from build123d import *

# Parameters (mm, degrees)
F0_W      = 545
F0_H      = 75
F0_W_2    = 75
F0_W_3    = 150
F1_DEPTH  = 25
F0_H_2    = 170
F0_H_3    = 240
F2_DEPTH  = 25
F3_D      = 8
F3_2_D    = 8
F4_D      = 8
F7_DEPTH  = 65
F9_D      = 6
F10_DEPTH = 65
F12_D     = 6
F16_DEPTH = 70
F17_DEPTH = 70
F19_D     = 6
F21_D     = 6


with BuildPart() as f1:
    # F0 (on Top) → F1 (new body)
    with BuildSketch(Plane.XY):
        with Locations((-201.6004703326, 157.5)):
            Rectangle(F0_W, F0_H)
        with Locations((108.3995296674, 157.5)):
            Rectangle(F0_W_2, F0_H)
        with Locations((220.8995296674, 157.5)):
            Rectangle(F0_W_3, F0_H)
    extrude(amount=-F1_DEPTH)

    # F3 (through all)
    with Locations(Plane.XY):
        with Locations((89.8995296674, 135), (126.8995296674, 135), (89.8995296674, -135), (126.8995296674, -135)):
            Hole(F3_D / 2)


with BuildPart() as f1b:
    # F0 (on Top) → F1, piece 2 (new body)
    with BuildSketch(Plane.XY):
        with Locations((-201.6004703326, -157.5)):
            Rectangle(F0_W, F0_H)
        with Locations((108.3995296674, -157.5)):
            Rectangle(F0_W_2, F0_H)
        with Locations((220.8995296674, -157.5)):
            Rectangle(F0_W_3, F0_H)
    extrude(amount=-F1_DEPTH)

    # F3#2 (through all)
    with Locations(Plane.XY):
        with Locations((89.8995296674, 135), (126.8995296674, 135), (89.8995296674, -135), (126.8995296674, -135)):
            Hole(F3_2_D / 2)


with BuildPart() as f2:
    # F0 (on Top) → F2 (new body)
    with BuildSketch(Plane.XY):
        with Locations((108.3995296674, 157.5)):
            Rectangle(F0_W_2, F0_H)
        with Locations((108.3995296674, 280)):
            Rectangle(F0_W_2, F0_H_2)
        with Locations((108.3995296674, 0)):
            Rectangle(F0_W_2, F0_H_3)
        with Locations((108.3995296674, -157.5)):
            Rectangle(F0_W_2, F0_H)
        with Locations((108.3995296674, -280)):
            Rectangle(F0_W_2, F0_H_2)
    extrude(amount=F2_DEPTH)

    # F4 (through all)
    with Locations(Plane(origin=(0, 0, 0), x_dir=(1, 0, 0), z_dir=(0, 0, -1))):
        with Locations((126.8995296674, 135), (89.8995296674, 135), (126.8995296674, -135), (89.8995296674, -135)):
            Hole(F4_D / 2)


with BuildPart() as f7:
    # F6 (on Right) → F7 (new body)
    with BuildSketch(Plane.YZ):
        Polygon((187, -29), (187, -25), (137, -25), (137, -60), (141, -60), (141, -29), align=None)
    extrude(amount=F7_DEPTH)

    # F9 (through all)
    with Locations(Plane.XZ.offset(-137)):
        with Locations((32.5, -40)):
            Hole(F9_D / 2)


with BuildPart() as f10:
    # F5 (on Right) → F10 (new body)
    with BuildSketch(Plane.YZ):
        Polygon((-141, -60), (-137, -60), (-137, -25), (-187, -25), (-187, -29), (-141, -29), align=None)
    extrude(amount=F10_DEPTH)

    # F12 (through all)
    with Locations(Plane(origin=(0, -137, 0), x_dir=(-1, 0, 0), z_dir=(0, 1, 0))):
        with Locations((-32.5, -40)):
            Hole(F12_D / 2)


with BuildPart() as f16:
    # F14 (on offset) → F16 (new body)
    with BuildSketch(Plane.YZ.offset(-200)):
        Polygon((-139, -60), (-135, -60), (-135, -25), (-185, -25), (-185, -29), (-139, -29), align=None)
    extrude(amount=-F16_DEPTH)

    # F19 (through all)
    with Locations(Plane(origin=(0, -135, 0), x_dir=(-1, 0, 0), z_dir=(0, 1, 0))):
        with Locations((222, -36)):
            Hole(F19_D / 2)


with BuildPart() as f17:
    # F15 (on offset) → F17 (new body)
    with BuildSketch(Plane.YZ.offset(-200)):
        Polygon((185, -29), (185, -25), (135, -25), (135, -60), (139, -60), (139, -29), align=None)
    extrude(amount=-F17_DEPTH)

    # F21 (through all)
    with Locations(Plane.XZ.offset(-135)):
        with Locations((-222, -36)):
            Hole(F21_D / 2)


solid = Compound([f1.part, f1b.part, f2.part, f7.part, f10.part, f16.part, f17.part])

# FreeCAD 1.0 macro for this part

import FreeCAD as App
import Part
import Sketcher

V = App.Vector
Q = App.Units.Quantity

doc = App.newDocument("Part")
body = doc.addObject("PartDesign::Body", "Body")

sketch1 = doc.addObject("Sketcher::SketchObject", "Sketch")
body.addObject(sketch1)
sketch1.AttachmentSupport = (doc.XY_Plane, [""])
sketch1.MapMode = "FlatFace"
sketch1.addGeometry([
    Part.LineSegment(V(-474.10047, 195, 0), V(-474.10047, 120, 0)),
    Part.LineSegment(V(-474.10047, 120, 0), V(295.89953, 120, 0)),
    Part.LineSegment(V(295.89953, 120, 0), V(295.89953, 195, 0)),
    Part.LineSegment(V(295.89953, 195, 0), V(-474.10047, 195, 0)),
], False)
sketch1.addConstraint([
    Sketcher.Constraint("Coincident", 0, 2, 1, 1),
    Sketcher.Constraint("Coincident", 1, 2, 2, 1),
    Sketcher.Constraint("Coincident", 2, 2, 3, 1),
    Sketcher.Constraint("Coincident", 3, 2, 0, 1),
    Sketcher.Constraint("Vertical", 0),
    Sketcher.Constraint("Horizontal", 1),
    Sketcher.Constraint("Vertical", 2),
    Sketcher.Constraint("Horizontal", 3),
    Sketcher.Constraint("DistanceX", 1, 1, 1, 2, Q("770 mm")),
    Sketcher.Constraint("DistanceY", 0, 2, 0, 1, Q("75 mm")),
    Sketcher.Constraint("DistanceY", -1, 1, 0, 2, Q("120 mm")),
    Sketcher.Constraint("DistanceX", 0, 2, -1, 1, Q("474.10047 mm")),
])
pad1 = doc.addObject("PartDesign::Pad", "Pad")
body.addObject(pad1)
pad1.Profile = sketch1
pad1.Length = 25
pad1.Reversed = True

sketch2 = doc.addObject("Sketcher::SketchObject", "Sketch001")
body.addObject(sketch2)
sketch2.AttachmentSupport = (doc.XY_Plane, [""])
sketch2.MapMode = "FlatFace"
sketch2.addGeometry([
    Part.Circle(V(89.89953, 135, 0), V(0, 0, 1), 4),
    Part.Circle(V(126.89953, 135, 0), V(0, 0, 1), 4),
    Part.Circle(V(89.89953, -135, 0), V(0, 0, 1), 4),
    Part.Circle(V(126.89953, -135, 0), V(0, 0, 1), 4),
], False)
sketch2.addConstraint([
    Sketcher.Constraint("Equal", 0, 1),
    Sketcher.Constraint("Equal", 1, 2),
    Sketcher.Constraint("Equal", 2, 3),
    Sketcher.Constraint("Symmetric", 0, 3, 2, 3, -1),
    Sketcher.Constraint("Symmetric", 1, 3, 3, 3, -1),
    Sketcher.Constraint("Horizontal", 0, 3, 1, 3),
    Sketcher.Constraint("Diameter", 0, Q("8 mm")),
    Sketcher.Constraint("DistanceY", -1, 1, 0, 3, Q("135 mm")),
    Sketcher.Constraint("DistanceX", 0, 3, 1, 3, Q("37 mm")),
    Sketcher.Constraint("DistanceX", -1, 1, 0, 3, Q("89.89953 mm")),
])
doc.recompute()
hole = doc.addObject("PartDesign::Hole", "Hole")
body.addObject(hole)
hole.Profile = sketch2
hole.ThreadType = "None"
hole.Diameter = 8
hole.DepthType = "ThroughAll"
body2 = doc.addObject("PartDesign::Body", "Body001")

sketch3 = doc.addObject("Sketcher::SketchObject", "Sketch002")
body2.addObject(sketch3)
sketch3.AttachmentSupport = (doc.getObject("XY_Plane001"), [""])
sketch3.MapMode = "FlatFace"
sketch3.addGeometry([
    Part.LineSegment(V(-474.10047, -120, 0), V(-474.10047, -195, 0)),
    Part.LineSegment(V(-474.10047, -195, 0), V(295.89953, -195, 0)),
    Part.LineSegment(V(295.89953, -195, 0), V(295.89953, -120, 0)),
    Part.LineSegment(V(295.89953, -120, 0), V(-474.10047, -120, 0)),
], False)
sketch3.addConstraint([
    Sketcher.Constraint("Coincident", 0, 2, 1, 1),
    Sketcher.Constraint("Coincident", 1, 2, 2, 1),
    Sketcher.Constraint("Coincident", 2, 2, 3, 1),
    Sketcher.Constraint("Coincident", 3, 2, 0, 1),
    Sketcher.Constraint("Vertical", 0),
    Sketcher.Constraint("Horizontal", 1),
    Sketcher.Constraint("Vertical", 2),
    Sketcher.Constraint("Horizontal", 3),
    Sketcher.Constraint("DistanceX", 1, 1, 1, 2, Q("770 mm")),
    Sketcher.Constraint("DistanceY", 0, 2, 0, 1, Q("75 mm")),
    Sketcher.Constraint("DistanceY", 0, 2, -1, 1, Q("195 mm")),
    Sketcher.Constraint("DistanceX", 0, 2, -1, 1, Q("474.10047 mm")),
])
pad2 = doc.addObject("PartDesign::Pad", "Pad001")
body2.addObject(pad2)
pad2.Profile = sketch3
pad2.Length = 25
pad2.Reversed = True

sketch4 = doc.addObject("Sketcher::SketchObject", "Sketch003")
body2.addObject(sketch4)
sketch4.AttachmentSupport = (doc.getObject("XY_Plane001"), [""])
sketch4.MapMode = "FlatFace"
sketch4.addGeometry([
    Part.Circle(V(89.89953, 135, 0), V(0, 0, 1), 4),
    Part.Circle(V(126.89953, 135, 0), V(0, 0, 1), 4),
    Part.Circle(V(89.89953, -135, 0), V(0, 0, 1), 4),
    Part.Circle(V(126.89953, -135, 0), V(0, 0, 1), 4),
], False)
sketch4.addConstraint([
    Sketcher.Constraint("Equal", 0, 1),
    Sketcher.Constraint("Equal", 1, 2),
    Sketcher.Constraint("Equal", 2, 3),
    Sketcher.Constraint("Symmetric", 0, 3, 2, 3, -1),
    Sketcher.Constraint("Symmetric", 1, 3, 3, 3, -1),
    Sketcher.Constraint("Horizontal", 0, 3, 1, 3),
    Sketcher.Constraint("Diameter", 0, Q("8 mm")),
    Sketcher.Constraint("DistanceY", -1, 1, 0, 3, Q("135 mm")),
    Sketcher.Constraint("DistanceX", 0, 3, 1, 3, Q("37 mm")),
    Sketcher.Constraint("DistanceX", -1, 1, 0, 3, Q("89.89953 mm")),
])
doc.recompute()
hole2 = doc.addObject("PartDesign::Hole", "Hole001")
body2.addObject(hole2)
hole2.Profile = sketch4
hole2.ThreadType = "None"
hole2.Diameter = 8
hole2.DepthType = "ThroughAll"
body3 = doc.addObject("PartDesign::Body", "Body002")

sketch5 = doc.addObject("Sketcher::SketchObject", "Sketch004")
body3.addObject(sketch5)
sketch5.AttachmentSupport = (doc.getObject("XY_Plane002"), [""])
sketch5.MapMode = "FlatFace"
sketch5.addGeometry([
    Part.LineSegment(V(145.89953, 365, 0), V(70.89953, 365, 0)),
    Part.LineSegment(V(70.89953, 365, 0), V(70.89953, -365, 0)),
    Part.LineSegment(V(70.89953, -365, 0), V(145.89953, -365, 0)),
    Part.LineSegment(V(145.89953, -365, 0), V(145.89953, 365, 0)),
], False)
sketch5.addConstraint([
    Sketcher.Constraint("Coincident", 0, 2, 1, 1),
    Sketcher.Constraint("Coincident", 1, 2, 2, 1),
    Sketcher.Constraint("Coincident", 2, 2, 3, 1),
    Sketcher.Constraint("Coincident", 3, 2, 0, 1),
    Sketcher.Constraint("Horizontal", 0),
    Sketcher.Constraint("Vertical", 1),
    Sketcher.Constraint("Horizontal", 2),
    Sketcher.Constraint("Vertical", 3),
    Sketcher.Constraint("DistanceX", 0, 2, 0, 1, Q("75 mm")),
    Sketcher.Constraint("DistanceY", 1, 2, 1, 1, Q("730 mm")),
    Sketcher.Constraint("DistanceY", -1, 1, 0, 2, Q("365 mm")),
    Sketcher.Constraint("DistanceX", -1, 1, 0, 2, Q("70.89953 mm")),
])
pad3 = doc.addObject("PartDesign::Pad", "Pad002")
body3.addObject(pad3)
pad3.Profile = sketch5
pad3.Length = 25

sketch6 = doc.addObject("Sketcher::SketchObject", "Sketch005")
body3.addObject(sketch6)
sketch6.AttachmentSupport = (doc.getObject("XY_Plane002"), [""])
sketch6.MapMode = "FlatFace"
sketch6.addGeometry([
    Part.Circle(V(126.89953, -135, 0), V(0, 0, 1), 4),
    Part.Circle(V(89.89953, -135, 0), V(0, 0, 1), 4),
    Part.Circle(V(126.89953, 135, 0), V(0, 0, 1), 4),
    Part.Circle(V(89.89953, 135, 0), V(0, 0, 1), 4),
], False)
sketch6.addConstraint([
    Sketcher.Constraint("Equal", 0, 1),
    Sketcher.Constraint("Equal", 1, 2),
    Sketcher.Constraint("Equal", 2, 3),
    Sketcher.Constraint("Symmetric", 0, 3, 2, 3, -1),
    Sketcher.Constraint("Symmetric", 1, 3, 3, 3, -1),
    Sketcher.Constraint("Horizontal", 0, 3, 1, 3),
    Sketcher.Constraint("Diameter", 0, Q("8 mm")),
    Sketcher.Constraint("DistanceY", 0, 3, -1, 1, Q("135 mm")),
    Sketcher.Constraint("DistanceX", 1, 3, 0, 3, Q("37 mm")),
    Sketcher.Constraint("DistanceX", -1, 1, 0, 3, Q("126.89953 mm")),
])
doc.recompute()
hole3 = doc.addObject("PartDesign::Hole", "Hole002")
body3.addObject(hole3)
hole3.Profile = sketch6
hole3.ThreadType = "None"
hole3.Diameter = 8
hole3.DepthType = "ThroughAll"
hole3.Reversed = True
body4 = doc.addObject("PartDesign::Body", "Body003")

sketch7 = doc.addObject("Sketcher::SketchObject", "Sketch006")
body4.addObject(sketch7)
sketch7.AttachmentSupport = (doc.getObject("YZ_Plane003"), [""])
sketch7.MapMode = "FlatFace"
sketch7.addGeometry([
    Part.LineSegment(V(187, -29, 0), V(187, -25, 0)),
    Part.LineSegment(V(187, -25, 0), V(137, -25, 0)),
    Part.LineSegment(V(137, -25, 0), V(137, -60, 0)),
    Part.LineSegment(V(137, -60, 0), V(141, -60, 0)),
    Part.LineSegment(V(141, -60, 0), V(141, -29, 0)),
    Part.LineSegment(V(141, -29, 0), V(187, -29, 0)),
], False)
sketch7.addConstraint([
    Sketcher.Constraint("Coincident", 0, 2, 1, 1),
    Sketcher.Constraint("Coincident", 1, 2, 2, 1),
    Sketcher.Constraint("Coincident", 2, 2, 3, 1),
    Sketcher.Constraint("Coincident", 3, 2, 4, 1),
    Sketcher.Constraint("Coincident", 4, 2, 5, 1),
    Sketcher.Constraint("Coincident", 5, 2, 0, 1),
    Sketcher.Constraint("Vertical", 0),
    Sketcher.Constraint("Horizontal", 1),
    Sketcher.Constraint("Vertical", 2),
    Sketcher.Constraint("Horizontal", 3),
    Sketcher.Constraint("Vertical", 4),
    Sketcher.Constraint("Horizontal", 5),
    Sketcher.Constraint("Equal", 3, 0),
    Sketcher.Constraint("DistanceX", 1, 2, 1, 1, Q("50 mm")),
    Sketcher.Constraint("DistanceX", 3, 1, 3, 2, Q("4 mm")),
    Sketcher.Constraint("DistanceY", 2, 2, 2, 1, Q("35 mm")),
    Sketcher.Constraint("DistanceX", -1, 1, 0, 2, Q("187 mm")),
    Sketcher.Constraint("DistanceY", 0, 2, -1, 1, Q("25 mm")),
])
pad4 = doc.addObject("PartDesign::Pad", "Pad003")
body4.addObject(pad4)
pad4.Profile = sketch7
pad4.Length = 65

sketch8 = doc.addObject("Sketcher::SketchObject", "Sketch007")
body4.addObject(sketch8)
sketch8.AttachmentSupport = (doc.getObject("XZ_Plane003"), [""])
sketch8.MapMode = "FlatFace"
sketch8.AttachmentOffset = App.Placement(V(0, 0, -137), App.Rotation())
sketch8.addGeometry(Part.Circle(V(32.5, -40, 0), V(0, 0, 1), 3), False)
sketch8.addConstraint([
    Sketcher.Constraint("Diameter", 0, Q("6 mm")),
    Sketcher.Constraint("DistanceY", 0, 3, -1, 1, Q("40 mm")),
    Sketcher.Constraint("DistanceX", -1, 1, 0, 3, Q("32.5 mm")),
])
doc.recompute()
hole4 = doc.addObject("PartDesign::Hole", "Hole003")
body4.addObject(hole4)
hole4.Profile = sketch8
hole4.ThreadType = "None"
hole4.Diameter = 6
hole4.DepthType = "ThroughAll"
body5 = doc.addObject("PartDesign::Body", "Body004")

sketch9 = doc.addObject("Sketcher::SketchObject", "Sketch008")
body5.addObject(sketch9)
sketch9.AttachmentSupport = (doc.getObject("YZ_Plane004"), [""])
sketch9.MapMode = "FlatFace"
sketch9.addGeometry([
    Part.LineSegment(V(-141, -60, 0), V(-137, -60, 0)),
    Part.LineSegment(V(-137, -60, 0), V(-137, -25, 0)),
    Part.LineSegment(V(-137, -25, 0), V(-187, -25, 0)),
    Part.LineSegment(V(-187, -25, 0), V(-187, -29, 0)),
    Part.LineSegment(V(-187, -29, 0), V(-141, -29, 0)),
    Part.LineSegment(V(-141, -29, 0), V(-141, -60, 0)),
], False)
sketch9.addConstraint([
    Sketcher.Constraint("Coincident", 0, 2, 1, 1),
    Sketcher.Constraint("Coincident", 1, 2, 2, 1),
    Sketcher.Constraint("Coincident", 2, 2, 3, 1),
    Sketcher.Constraint("Coincident", 3, 2, 4, 1),
    Sketcher.Constraint("Coincident", 4, 2, 5, 1),
    Sketcher.Constraint("Coincident", 5, 2, 0, 1),
    Sketcher.Constraint("Horizontal", 0),
    Sketcher.Constraint("Vertical", 1),
    Sketcher.Constraint("Horizontal", 2),
    Sketcher.Constraint("Vertical", 3),
    Sketcher.Constraint("Horizontal", 4),
    Sketcher.Constraint("Vertical", 5),
    Sketcher.Constraint("Equal", 0, 3),
    Sketcher.Constraint("DistanceX", 0, 1, 0, 2, Q("4 mm")),
    Sketcher.Constraint("DistanceX", 2, 2, 2, 1, Q("50 mm")),
    Sketcher.Constraint("DistanceY", 1, 1, 1, 2, Q("35 mm")),
    Sketcher.Constraint("DistanceX", 0, 2, -1, 1, Q("137 mm")),
    Sketcher.Constraint("DistanceY", 0, 2, -1, 1, Q("60 mm")),
])
pad5 = doc.addObject("PartDesign::Pad", "Pad004")
body5.addObject(pad5)
pad5.Profile = sketch9
pad5.Length = 65

sketch10 = doc.addObject("Sketcher::SketchObject", "Sketch009")
body5.addObject(sketch10)
sketch10.AttachmentSupport = (doc.getObject("XZ_Plane004"), [""])
sketch10.MapMode = "FlatFace"
sketch10.AttachmentOffset = App.Placement(V(0, 0, 137), App.Rotation())
sketch10.addGeometry(Part.Circle(V(32.5, -40, 0), V(0, 0, 1), 3), False)
sketch10.addConstraint([
    Sketcher.Constraint("Diameter", 0, Q("6 mm")),
    Sketcher.Constraint("DistanceY", 0, 3, -1, 1, Q("40 mm")),
    Sketcher.Constraint("DistanceX", -1, 1, 0, 3, Q("32.5 mm")),
])
doc.recompute()
hole5 = doc.addObject("PartDesign::Hole", "Hole004")
body5.addObject(hole5)
hole5.Profile = sketch10
hole5.ThreadType = "None"
hole5.Diameter = 6
hole5.DepthType = "ThroughAll"
hole5.Reversed = True
body6 = doc.addObject("PartDesign::Body", "Body005")

sketch11 = doc.addObject("Sketcher::SketchObject", "Sketch010")
body6.addObject(sketch11)
sketch11.AttachmentSupport = (doc.getObject("YZ_Plane005"), [""])
sketch11.MapMode = "FlatFace"
sketch11.AttachmentOffset = App.Placement(V(0, 0, -200), App.Rotation())
sketch11.addGeometry([
    Part.LineSegment(V(-139, -60, 0), V(-135, -60, 0)),
    Part.LineSegment(V(-135, -60, 0), V(-135, -25, 0)),
    Part.LineSegment(V(-135, -25, 0), V(-185, -25, 0)),
    Part.LineSegment(V(-185, -25, 0), V(-185, -29, 0)),
    Part.LineSegment(V(-185, -29, 0), V(-139, -29, 0)),
    Part.LineSegment(V(-139, -29, 0), V(-139, -60, 0)),
], False)
sketch11.addConstraint([
    Sketcher.Constraint("Coincident", 0, 2, 1, 1),
    Sketcher.Constraint("Coincident", 1, 2, 2, 1),
    Sketcher.Constraint("Coincident", 2, 2, 3, 1),
    Sketcher.Constraint("Coincident", 3, 2, 4, 1),
    Sketcher.Constraint("Coincident", 4, 2, 5, 1),
    Sketcher.Constraint("Coincident", 5, 2, 0, 1),
    Sketcher.Constraint("Horizontal", 0),
    Sketcher.Constraint("Vertical", 1),
    Sketcher.Constraint("Horizontal", 2),
    Sketcher.Constraint("Vertical", 3),
    Sketcher.Constraint("Horizontal", 4),
    Sketcher.Constraint("Vertical", 5),
    Sketcher.Constraint("Equal", 0, 3),
    Sketcher.Constraint("DistanceX", 0, 1, 0, 2, Q("4 mm")),
    Sketcher.Constraint("DistanceX", 2, 2, 2, 1, Q("50 mm")),
    Sketcher.Constraint("DistanceY", 1, 1, 1, 2, Q("35 mm")),
    Sketcher.Constraint("DistanceX", 0, 2, -1, 1, Q("135 mm")),
    Sketcher.Constraint("DistanceY", 0, 2, -1, 1, Q("60 mm")),
])
pad6 = doc.addObject("PartDesign::Pad", "Pad005")
body6.addObject(pad6)
pad6.Profile = sketch11
pad6.Length = 70
pad6.Reversed = True

sketch12 = doc.addObject("Sketcher::SketchObject", "Sketch011")
body6.addObject(sketch12)
sketch12.AttachmentSupport = (doc.getObject("XZ_Plane005"), [""])
sketch12.MapMode = "FlatFace"
sketch12.AttachmentOffset = App.Placement(V(0, 0, 135), App.Rotation())
sketch12.addGeometry(Part.Circle(V(-222, -36, 0), V(0, 0, 1), 3), False)
sketch12.addConstraint([
    Sketcher.Constraint("Diameter", 0, Q("6 mm")),
    Sketcher.Constraint("DistanceX", 0, 3, -1, 1, Q("222 mm")),
    Sketcher.Constraint("DistanceY", 0, 3, -1, 1, Q("36 mm")),
])
doc.recompute()
hole6 = doc.addObject("PartDesign::Hole", "Hole005")
body6.addObject(hole6)
hole6.Profile = sketch12
hole6.ThreadType = "None"
hole6.Diameter = 6
hole6.DepthType = "ThroughAll"
hole6.Reversed = True
body7 = doc.addObject("PartDesign::Body", "Body006")

sketch13 = doc.addObject("Sketcher::SketchObject", "Sketch012")
body7.addObject(sketch13)
sketch13.AttachmentSupport = (doc.getObject("YZ_Plane006"), [""])
sketch13.MapMode = "FlatFace"
sketch13.AttachmentOffset = App.Placement(V(0, 0, -200), App.Rotation())
sketch13.addGeometry([
    Part.LineSegment(V(185, -29, 0), V(185, -25, 0)),
    Part.LineSegment(V(185, -25, 0), V(135, -25, 0)),
    Part.LineSegment(V(135, -25, 0), V(135, -60, 0)),
    Part.LineSegment(V(135, -60, 0), V(139, -60, 0)),
    Part.LineSegment(V(139, -60, 0), V(139, -29, 0)),
    Part.LineSegment(V(139, -29, 0), V(185, -29, 0)),
], False)
sketch13.addConstraint([
    Sketcher.Constraint("Coincident", 0, 2, 1, 1),
    Sketcher.Constraint("Coincident", 1, 2, 2, 1),
    Sketcher.Constraint("Coincident", 2, 2, 3, 1),
    Sketcher.Constraint("Coincident", 3, 2, 4, 1),
    Sketcher.Constraint("Coincident", 4, 2, 5, 1),
    Sketcher.Constraint("Coincident", 5, 2, 0, 1),
    Sketcher.Constraint("Vertical", 0),
    Sketcher.Constraint("Horizontal", 1),
    Sketcher.Constraint("Vertical", 2),
    Sketcher.Constraint("Horizontal", 3),
    Sketcher.Constraint("Vertical", 4),
    Sketcher.Constraint("Horizontal", 5),
    Sketcher.Constraint("Equal", 3, 0),
    Sketcher.Constraint("DistanceX", 1, 2, 1, 1, Q("50 mm")),
    Sketcher.Constraint("DistanceX", 3, 1, 3, 2, Q("4 mm")),
    Sketcher.Constraint("DistanceY", 2, 2, 2, 1, Q("35 mm")),
    Sketcher.Constraint("DistanceX", -1, 1, 0, 2, Q("185 mm")),
    Sketcher.Constraint("DistanceY", 0, 2, -1, 1, Q("25 mm")),
])
pad7 = doc.addObject("PartDesign::Pad", "Pad006")
body7.addObject(pad7)
pad7.Profile = sketch13
pad7.Length = 70
pad7.Reversed = True

sketch14 = doc.addObject("Sketcher::SketchObject", "Sketch013")
body7.addObject(sketch14)
sketch14.AttachmentSupport = (doc.getObject("XZ_Plane006"), [""])
sketch14.MapMode = "FlatFace"
sketch14.AttachmentOffset = App.Placement(V(0, 0, -135), App.Rotation())
sketch14.addGeometry(Part.Circle(V(-222, -36, 0), V(0, 0, 1), 3), False)
sketch14.addConstraint([
    Sketcher.Constraint("Diameter", 0, Q("6 mm")),
    Sketcher.Constraint("DistanceX", 0, 3, -1, 1, Q("222 mm")),
    Sketcher.Constraint("DistanceY", 0, 3, -1, 1, Q("36 mm")),
])
doc.recompute()
hole7 = doc.addObject("PartDesign::Hole", "Hole006")
body7.addObject(hole7)
hole7.Profile = sketch14
hole7.ThreadType = "None"
hole7.Diameter = 6
hole7.DepthType = "ThroughAll"

doc.recompute()
